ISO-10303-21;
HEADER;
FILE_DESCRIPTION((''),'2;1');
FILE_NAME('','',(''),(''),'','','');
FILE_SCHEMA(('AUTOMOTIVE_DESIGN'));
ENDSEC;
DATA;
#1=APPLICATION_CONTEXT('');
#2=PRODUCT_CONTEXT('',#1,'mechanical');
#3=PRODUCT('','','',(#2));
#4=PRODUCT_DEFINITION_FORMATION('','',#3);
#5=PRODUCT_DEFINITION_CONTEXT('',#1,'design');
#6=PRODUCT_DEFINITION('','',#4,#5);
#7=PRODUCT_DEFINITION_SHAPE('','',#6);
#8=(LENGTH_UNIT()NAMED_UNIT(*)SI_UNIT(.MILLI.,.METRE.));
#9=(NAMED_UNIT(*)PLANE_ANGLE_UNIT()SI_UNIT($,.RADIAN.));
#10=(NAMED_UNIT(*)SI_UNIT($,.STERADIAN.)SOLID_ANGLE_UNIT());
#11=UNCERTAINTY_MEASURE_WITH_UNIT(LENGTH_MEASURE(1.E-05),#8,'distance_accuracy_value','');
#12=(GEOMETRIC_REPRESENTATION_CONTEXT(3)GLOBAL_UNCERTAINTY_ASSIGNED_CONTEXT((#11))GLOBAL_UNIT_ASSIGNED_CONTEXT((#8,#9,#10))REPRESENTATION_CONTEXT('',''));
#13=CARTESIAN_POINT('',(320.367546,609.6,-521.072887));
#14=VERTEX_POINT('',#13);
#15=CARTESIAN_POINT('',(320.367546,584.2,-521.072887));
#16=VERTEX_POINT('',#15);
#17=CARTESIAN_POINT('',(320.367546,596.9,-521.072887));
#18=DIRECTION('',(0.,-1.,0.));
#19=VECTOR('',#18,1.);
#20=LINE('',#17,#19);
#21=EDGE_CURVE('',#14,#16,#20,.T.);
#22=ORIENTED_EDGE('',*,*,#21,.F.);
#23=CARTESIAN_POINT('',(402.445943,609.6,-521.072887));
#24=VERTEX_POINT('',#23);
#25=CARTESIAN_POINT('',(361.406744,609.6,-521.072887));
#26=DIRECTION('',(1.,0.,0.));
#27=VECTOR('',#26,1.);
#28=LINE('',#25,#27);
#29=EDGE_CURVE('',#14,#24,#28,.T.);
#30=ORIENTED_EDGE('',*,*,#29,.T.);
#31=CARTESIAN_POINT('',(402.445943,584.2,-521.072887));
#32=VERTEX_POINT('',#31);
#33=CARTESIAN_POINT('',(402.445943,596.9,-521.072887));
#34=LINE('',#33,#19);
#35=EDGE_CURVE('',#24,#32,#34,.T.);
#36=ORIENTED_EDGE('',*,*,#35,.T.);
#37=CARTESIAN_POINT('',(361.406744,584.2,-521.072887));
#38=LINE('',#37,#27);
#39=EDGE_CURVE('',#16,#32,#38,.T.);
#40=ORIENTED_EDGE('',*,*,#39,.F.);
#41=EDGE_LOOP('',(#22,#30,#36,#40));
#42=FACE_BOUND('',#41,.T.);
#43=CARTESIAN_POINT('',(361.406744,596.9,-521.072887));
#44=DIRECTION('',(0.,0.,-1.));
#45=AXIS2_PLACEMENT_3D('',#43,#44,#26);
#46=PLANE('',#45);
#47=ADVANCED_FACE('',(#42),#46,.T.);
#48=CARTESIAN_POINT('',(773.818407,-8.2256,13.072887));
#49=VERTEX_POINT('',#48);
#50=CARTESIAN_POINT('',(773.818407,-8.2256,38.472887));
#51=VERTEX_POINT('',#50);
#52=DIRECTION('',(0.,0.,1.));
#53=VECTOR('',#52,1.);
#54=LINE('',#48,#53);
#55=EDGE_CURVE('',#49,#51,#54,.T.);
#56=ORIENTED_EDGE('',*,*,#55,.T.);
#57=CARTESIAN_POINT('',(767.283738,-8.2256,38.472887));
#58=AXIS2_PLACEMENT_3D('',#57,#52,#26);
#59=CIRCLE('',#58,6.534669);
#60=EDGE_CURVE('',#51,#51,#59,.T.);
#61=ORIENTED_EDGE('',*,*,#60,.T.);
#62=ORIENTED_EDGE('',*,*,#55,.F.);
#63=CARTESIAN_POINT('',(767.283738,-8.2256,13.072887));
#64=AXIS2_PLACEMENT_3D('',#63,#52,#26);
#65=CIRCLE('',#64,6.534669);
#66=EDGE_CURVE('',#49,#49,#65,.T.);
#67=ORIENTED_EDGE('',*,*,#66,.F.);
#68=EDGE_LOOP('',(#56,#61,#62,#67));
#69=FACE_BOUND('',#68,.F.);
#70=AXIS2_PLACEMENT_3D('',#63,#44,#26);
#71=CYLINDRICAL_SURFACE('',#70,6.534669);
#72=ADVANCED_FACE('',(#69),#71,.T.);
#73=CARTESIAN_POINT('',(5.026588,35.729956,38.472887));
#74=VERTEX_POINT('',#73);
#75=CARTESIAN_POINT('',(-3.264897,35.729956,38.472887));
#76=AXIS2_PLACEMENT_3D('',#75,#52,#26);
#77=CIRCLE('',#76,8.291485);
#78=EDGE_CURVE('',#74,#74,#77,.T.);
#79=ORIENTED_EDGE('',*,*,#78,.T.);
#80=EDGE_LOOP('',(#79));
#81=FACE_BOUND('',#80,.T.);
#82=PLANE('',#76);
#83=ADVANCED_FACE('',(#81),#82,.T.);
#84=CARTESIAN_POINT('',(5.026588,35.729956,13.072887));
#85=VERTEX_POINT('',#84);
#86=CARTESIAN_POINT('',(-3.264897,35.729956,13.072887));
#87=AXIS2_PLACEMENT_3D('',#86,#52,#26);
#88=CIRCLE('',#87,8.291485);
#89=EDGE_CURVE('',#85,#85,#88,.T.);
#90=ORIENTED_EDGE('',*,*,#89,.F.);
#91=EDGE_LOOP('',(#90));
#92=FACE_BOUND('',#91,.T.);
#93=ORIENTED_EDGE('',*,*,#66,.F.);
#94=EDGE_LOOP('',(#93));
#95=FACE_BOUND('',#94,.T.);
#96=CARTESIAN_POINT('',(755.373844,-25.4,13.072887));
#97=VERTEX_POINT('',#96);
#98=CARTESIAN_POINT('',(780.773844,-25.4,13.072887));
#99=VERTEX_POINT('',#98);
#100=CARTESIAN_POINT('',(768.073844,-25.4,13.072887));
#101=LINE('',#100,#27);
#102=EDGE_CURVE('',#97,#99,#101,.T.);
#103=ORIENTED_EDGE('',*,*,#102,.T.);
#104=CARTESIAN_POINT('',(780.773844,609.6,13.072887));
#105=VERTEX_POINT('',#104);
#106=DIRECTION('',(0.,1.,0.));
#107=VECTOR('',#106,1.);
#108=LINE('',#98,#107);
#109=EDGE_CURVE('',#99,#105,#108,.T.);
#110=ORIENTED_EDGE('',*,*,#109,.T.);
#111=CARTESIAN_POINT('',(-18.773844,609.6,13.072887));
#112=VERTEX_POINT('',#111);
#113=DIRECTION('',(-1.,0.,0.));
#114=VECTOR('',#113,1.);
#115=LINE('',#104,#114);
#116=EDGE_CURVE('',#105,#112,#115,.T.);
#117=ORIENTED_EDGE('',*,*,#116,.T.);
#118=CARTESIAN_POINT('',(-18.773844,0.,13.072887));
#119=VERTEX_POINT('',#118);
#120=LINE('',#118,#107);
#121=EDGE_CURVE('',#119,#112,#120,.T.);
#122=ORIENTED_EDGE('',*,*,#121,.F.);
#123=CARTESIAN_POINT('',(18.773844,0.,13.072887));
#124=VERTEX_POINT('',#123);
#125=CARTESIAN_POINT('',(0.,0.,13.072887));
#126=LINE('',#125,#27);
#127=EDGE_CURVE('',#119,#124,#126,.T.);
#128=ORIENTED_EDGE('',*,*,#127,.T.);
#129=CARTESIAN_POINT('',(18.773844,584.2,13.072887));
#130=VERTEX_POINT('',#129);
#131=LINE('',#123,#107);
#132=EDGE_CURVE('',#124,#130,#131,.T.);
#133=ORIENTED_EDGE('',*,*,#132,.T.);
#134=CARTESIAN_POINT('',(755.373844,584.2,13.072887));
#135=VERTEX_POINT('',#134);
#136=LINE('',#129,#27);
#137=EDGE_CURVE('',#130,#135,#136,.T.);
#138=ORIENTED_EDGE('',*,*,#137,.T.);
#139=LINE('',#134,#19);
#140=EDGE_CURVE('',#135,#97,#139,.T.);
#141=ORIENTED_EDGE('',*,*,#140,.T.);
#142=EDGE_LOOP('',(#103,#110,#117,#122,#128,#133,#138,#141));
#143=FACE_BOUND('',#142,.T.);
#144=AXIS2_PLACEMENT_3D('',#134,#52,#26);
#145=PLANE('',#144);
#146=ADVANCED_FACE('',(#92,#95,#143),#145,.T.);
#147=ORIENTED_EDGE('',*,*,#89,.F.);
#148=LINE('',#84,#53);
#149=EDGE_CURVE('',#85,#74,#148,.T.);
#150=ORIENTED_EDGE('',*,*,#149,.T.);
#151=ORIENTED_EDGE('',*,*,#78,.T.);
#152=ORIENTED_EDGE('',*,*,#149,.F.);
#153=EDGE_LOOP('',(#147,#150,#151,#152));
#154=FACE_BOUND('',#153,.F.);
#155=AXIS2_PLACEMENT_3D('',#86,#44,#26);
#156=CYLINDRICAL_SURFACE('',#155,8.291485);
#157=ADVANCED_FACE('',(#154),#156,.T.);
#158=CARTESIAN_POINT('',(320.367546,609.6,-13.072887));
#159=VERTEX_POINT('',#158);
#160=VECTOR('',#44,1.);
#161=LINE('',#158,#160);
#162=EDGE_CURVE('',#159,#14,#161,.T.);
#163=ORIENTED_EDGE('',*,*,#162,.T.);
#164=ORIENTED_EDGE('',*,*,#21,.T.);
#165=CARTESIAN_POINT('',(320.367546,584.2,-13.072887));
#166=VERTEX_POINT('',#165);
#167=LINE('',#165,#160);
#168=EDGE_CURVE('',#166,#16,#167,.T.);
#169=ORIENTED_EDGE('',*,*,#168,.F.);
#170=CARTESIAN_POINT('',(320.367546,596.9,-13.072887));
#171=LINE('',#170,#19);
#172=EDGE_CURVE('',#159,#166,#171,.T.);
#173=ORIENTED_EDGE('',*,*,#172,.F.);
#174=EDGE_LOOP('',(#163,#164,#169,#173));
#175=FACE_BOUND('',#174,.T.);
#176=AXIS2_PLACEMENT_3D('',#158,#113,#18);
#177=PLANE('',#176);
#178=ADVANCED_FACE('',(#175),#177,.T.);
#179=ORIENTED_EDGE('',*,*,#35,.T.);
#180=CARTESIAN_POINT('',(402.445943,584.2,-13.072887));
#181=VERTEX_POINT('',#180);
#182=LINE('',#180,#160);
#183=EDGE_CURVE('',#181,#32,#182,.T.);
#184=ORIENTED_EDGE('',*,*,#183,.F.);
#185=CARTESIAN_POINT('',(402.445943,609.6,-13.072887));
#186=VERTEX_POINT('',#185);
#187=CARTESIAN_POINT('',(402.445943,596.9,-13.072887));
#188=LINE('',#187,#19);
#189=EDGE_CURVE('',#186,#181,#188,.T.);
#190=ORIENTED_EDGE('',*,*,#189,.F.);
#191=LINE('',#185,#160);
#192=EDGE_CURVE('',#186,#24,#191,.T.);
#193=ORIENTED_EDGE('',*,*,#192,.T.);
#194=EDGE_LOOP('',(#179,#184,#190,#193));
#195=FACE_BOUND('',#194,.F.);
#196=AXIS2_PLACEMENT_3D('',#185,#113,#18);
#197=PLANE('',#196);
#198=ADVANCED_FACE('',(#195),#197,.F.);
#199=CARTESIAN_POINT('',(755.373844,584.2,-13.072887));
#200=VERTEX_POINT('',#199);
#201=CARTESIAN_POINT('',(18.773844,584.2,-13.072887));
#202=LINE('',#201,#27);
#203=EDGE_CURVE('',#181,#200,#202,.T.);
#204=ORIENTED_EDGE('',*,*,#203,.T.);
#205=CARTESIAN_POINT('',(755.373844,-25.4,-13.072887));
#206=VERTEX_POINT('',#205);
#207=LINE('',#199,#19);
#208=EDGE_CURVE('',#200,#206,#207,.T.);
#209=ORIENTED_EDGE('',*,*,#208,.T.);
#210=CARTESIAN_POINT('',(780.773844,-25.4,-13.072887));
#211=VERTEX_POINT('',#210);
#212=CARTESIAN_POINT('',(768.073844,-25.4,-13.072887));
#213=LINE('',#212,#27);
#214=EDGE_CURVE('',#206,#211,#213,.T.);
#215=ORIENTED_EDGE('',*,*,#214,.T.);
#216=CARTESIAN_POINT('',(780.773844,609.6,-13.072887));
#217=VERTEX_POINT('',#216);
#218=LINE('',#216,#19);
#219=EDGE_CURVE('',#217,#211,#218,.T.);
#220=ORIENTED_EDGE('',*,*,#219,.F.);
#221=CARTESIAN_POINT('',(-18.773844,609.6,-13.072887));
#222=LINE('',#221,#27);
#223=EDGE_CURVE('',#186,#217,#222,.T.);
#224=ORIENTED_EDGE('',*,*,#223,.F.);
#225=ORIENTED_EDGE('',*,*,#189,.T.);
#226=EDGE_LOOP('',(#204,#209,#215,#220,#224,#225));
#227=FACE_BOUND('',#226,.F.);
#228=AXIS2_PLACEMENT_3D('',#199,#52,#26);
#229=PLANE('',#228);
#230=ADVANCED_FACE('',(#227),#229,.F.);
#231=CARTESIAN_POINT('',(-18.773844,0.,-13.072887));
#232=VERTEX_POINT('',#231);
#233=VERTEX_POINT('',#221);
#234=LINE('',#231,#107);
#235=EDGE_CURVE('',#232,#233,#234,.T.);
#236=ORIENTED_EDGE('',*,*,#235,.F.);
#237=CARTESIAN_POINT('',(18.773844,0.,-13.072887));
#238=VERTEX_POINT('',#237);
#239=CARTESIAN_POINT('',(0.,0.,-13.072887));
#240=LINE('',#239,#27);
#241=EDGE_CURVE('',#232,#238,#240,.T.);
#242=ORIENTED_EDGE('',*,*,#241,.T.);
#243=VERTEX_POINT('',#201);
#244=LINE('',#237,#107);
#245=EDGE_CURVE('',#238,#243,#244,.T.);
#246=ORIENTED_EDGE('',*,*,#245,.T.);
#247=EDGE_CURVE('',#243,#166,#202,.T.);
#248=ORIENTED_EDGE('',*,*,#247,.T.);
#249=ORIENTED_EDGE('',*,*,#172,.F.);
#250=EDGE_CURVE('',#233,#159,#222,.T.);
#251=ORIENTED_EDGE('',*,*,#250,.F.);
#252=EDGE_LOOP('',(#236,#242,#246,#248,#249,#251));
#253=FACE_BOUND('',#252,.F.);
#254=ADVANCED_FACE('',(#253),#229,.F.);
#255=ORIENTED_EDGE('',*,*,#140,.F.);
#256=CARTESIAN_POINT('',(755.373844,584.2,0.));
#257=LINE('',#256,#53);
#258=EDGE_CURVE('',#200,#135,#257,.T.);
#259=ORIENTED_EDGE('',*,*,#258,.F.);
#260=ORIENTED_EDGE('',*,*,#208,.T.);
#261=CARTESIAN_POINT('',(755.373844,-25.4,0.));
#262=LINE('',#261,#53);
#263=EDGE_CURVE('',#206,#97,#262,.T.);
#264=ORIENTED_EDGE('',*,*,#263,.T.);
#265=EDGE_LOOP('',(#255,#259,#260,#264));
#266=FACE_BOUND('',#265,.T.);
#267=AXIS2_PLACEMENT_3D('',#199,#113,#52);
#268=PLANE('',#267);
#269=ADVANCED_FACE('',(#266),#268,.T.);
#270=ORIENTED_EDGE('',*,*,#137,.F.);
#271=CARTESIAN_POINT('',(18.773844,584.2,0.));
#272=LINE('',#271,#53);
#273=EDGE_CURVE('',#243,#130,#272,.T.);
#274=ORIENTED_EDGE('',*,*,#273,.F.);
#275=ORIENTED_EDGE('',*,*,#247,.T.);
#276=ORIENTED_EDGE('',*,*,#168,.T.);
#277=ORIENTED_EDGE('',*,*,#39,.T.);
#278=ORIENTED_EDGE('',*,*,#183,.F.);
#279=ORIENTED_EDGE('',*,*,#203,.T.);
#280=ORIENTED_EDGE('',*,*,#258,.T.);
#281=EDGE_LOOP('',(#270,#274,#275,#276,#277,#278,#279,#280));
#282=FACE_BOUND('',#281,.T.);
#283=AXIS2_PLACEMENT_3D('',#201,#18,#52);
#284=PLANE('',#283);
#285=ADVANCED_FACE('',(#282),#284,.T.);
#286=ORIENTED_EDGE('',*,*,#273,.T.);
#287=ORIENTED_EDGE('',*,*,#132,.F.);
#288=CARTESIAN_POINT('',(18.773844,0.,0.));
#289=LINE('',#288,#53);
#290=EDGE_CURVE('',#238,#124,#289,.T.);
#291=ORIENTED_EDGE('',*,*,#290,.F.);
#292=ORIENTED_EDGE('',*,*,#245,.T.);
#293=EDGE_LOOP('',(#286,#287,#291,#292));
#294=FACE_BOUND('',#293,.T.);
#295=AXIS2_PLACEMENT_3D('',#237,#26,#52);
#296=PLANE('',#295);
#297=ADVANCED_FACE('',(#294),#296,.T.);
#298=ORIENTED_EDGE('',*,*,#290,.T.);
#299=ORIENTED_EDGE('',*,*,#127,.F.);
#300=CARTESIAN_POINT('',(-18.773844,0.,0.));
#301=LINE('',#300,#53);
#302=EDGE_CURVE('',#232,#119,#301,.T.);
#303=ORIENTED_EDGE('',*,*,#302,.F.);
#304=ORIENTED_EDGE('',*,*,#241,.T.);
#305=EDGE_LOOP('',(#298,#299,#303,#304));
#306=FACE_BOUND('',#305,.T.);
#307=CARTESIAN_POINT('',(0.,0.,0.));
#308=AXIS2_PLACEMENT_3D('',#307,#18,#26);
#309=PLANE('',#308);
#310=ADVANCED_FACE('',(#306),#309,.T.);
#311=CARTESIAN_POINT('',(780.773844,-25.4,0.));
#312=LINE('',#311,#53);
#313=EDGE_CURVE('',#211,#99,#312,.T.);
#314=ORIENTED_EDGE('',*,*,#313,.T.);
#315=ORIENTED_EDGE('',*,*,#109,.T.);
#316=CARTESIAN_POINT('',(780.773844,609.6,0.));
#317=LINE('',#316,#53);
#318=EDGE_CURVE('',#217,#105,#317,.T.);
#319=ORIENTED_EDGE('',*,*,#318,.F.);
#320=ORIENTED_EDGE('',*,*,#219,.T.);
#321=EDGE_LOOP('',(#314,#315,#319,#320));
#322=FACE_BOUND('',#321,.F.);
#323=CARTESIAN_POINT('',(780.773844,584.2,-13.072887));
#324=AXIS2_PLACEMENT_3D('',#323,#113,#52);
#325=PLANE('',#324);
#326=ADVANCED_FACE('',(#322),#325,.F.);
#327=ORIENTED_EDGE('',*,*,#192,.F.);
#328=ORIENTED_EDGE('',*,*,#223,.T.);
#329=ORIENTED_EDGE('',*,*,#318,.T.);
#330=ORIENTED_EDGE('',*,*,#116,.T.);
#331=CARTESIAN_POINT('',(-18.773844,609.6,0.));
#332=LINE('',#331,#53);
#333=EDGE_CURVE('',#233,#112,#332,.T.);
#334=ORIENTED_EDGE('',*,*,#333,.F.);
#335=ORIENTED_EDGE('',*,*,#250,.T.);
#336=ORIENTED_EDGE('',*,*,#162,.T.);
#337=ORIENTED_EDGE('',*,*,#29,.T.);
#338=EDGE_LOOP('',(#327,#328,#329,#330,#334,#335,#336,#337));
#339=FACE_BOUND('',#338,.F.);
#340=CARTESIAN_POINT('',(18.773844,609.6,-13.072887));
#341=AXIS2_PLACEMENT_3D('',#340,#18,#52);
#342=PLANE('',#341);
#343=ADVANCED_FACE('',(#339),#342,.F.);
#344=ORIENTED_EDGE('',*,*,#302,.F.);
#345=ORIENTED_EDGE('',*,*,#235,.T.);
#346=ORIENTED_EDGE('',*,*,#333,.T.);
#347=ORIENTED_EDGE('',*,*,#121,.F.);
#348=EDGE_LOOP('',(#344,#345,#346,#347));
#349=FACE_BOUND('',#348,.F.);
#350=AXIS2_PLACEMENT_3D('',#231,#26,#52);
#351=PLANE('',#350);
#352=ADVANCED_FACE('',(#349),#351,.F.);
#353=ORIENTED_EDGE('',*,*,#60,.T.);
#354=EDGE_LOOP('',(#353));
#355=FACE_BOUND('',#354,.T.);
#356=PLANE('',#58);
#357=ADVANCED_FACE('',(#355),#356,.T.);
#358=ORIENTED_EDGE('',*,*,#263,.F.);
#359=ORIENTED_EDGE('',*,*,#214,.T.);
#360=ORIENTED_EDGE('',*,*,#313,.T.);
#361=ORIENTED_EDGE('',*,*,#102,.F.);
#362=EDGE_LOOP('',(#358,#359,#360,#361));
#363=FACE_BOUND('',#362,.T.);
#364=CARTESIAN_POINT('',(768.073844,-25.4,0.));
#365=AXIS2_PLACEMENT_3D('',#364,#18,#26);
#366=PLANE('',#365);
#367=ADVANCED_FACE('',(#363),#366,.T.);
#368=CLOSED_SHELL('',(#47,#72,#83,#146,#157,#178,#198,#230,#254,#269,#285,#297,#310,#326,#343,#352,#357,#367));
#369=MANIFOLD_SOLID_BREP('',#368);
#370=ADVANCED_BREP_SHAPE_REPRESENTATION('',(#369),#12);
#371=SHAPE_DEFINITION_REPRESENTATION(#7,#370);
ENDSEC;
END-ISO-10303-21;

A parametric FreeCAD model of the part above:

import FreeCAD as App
import Part
import Sketcher
from FreeCAD import Vector
Q = App.Units.Quantity

doc = App.newDocument("Part")
params = doc.addObject("Spreadsheet::Sheet", "Params")
for row, (alias, value) in enumerate([
    ("pad1_length", "24 in"),
    ("sketch2_width", "1 in"),
    ("pad2_length", "30 in"),
    ("sketch3_width", "1 in"),
    ("pad3_length", "24 in"),
    ("sketch4_height", "1 in"),
    ("pad4_length", "20 in"),
    ("pad5_length", "1 in"),
    ("pad6_length", "1 in"),
], start=1):
    params.set(f"A{row}", alias)
    params.set(f"B{row}", "=" + value)
    params.setAlias(f"B{row}", alias)

body = doc.addObject("PartDesign::Body", "Body")

# Sketch on XZ plane
sketch1 = body.newObject("Sketcher::SketchObject", "Sketch")
sketch1.AttachmentSupport = (doc.getObject("XZ_Plane"), [""])
sketch1.MapMode = "FlatFace"
sketch1.addGeometry([
    Part.LineSegment(Vector(-19, 13, 0), Vector(-19, -13, 0)),
    Part.LineSegment(Vector(-19, -13, 0), Vector(19, -13, 0)),
    Part.LineSegment(Vector(19, -13, 0), Vector(19, 13, 0)),
    Part.LineSegment(Vector(19, 13, 0), Vector(-19, 13, 0)),
], False)
sketch1.addConstraint([
    Sketcher.Constraint("Coincident", 0, 2, 1, 1),
    Sketcher.Constraint("Coincident", 1, 2, 2, 1),
    Sketcher.Constraint("Coincident", 2, 2, 3, 1),
    Sketcher.Constraint("Coincident", 3, 2, 0, 1),
    Sketcher.Constraint("Vertical", 0),
    Sketcher.Constraint("Horizontal", 1),
    Sketcher.Constraint("Vertical", 2),
    Sketcher.Constraint("Horizontal", 3),
    Sketcher.Constraint("Symmetric", 0, 2, 2, 2, -1, 1),
    Sketcher.Constraint("DistanceX", 1, 1, 1, 2, 37.547688),
    Sketcher.Constraint("DistanceY", 0, 2, 0, 1, 26.145774),
])
pad1 = body.newObject("PartDesign::Pad", "Pad")
pad1.Profile = sketch1
pad1.setExpression("Length", "Params.pad1_length")
pad1.Reversed = True

# Sketch on YZ plane
sketch2 = body.newObject("Sketcher::SketchObject", "Sketch001")
sketch2.AttachmentSupport = (doc.getObject("YZ_Plane"), [""])
sketch2.MapMode = "FlatFace"
sketch2.AttachmentOffset = App.Placement(Vector(0, 0, 18.773844), App.Rotation())
sketch2.addGeometry([
    Part.LineSegment(Vector(584, 13, 0), Vector(584, -13, 0)),
    Part.LineSegment(Vector(584, -13, 0), Vector(610, -13, 0)),
    Part.LineSegment(Vector(610, -13, 0), Vector(610, 13, 0)),
    Part.LineSegment(Vector(610, 13, 0), Vector(584, 13, 0)),
], False)
sketch2.addConstraint([
    Sketcher.Constraint("Coincident", 0, 2, 1, 1),
    Sketcher.Constraint("Coincident", 1, 2, 2, 1),
    Sketcher.Constraint("Coincident", 2, 2, 3, 1),
    Sketcher.Constraint("Coincident", 3, 2, 0, 1),
    Sketcher.Constraint("Vertical", 0),
    Sketcher.Constraint("Horizontal", 1),
    Sketcher.Constraint("Vertical", 2),
    Sketcher.Constraint("Horizontal", 3),
    Sketcher.Constraint("DistanceX", 1, 1, 1, 2, Q("1 in")),
    Sketcher.Constraint("DistanceX", -1, 1, 0, 2, Q("23 in")),
    Sketcher.Constraint("DistanceY", 0, 2, 0, 1, 26.145774),
    Sketcher.Constraint("DistanceY", 0, 2, -1, 1, 13.072887),
])
sketch2.setExpression("Constraints[8]", "Params.sketch2_width")
pad2 = body.newObject("PartDesign::Pad", "Pad001")
pad2.Profile = sketch2
pad2.setExpression("Length", "Params.pad2_length")

# Sketch on XZ plane
sketch3 = body.newObject("Sketcher::SketchObject", "Sketch002")
sketch3.AttachmentSupport = (doc.getObject("XZ_Plane"), [""])
sketch3.MapMode = "FlatFace"
sketch3.AttachmentOffset = App.Placement(Vector(0, 0, -23 * 25.4), App.Rotation())
sketch3.addGeometry([
    Part.LineSegment(Vector(755, 13, 0), Vector(755, -13, 0)),
    Part.LineSegment(Vector(755, -13, 0), Vector(781, -13, 0)),
    Part.LineSegment(Vector(781, -13, 0), Vector(781, 13, 0)),
    Part.LineSegment(Vector(781, 13, 0), Vector(755, 13, 0)),
], False)
sketch3.addConstraint([
    Sketcher.Constraint("Coincident", 0, 2, 1, 1),
    Sketcher.Constraint("Coincident", 1, 2, 2, 1),
    Sketcher.Constraint("Coincident", 2, 2, 3, 1),
    Sketcher.Constraint("Coincident", 3, 2, 0, 1),
    Sketcher.Constraint("Vertical", 0),
    Sketcher.Constraint("Horizontal", 1),
    Sketcher.Constraint("Vertical", 2),
    Sketcher.Constraint("Horizontal", 3),
    Sketcher.Constraint("DistanceX", 1, 1, 1, 2, Q("1 in")),
    Sketcher.Constraint("DistanceY", 0, 2, 0, 1, 26.145774),
    Sketcher.Constraint("DistanceX", -1, 1, 0, 2, 755.373844),
    Sketcher.Constraint("DistanceY", 0, 2, -1, 1, 13.072887),
])
sketch3.setExpression("Constraints[8]", "Params.sketch3_width")
pad3 = body.newObject("PartDesign::Pad", "Pad002")
pad3.Profile = sketch3
pad3.setExpression("Length", "Params.pad3_length")

# Sketch on XY plane
sketch4 = body.newObject("Sketcher::SketchObject", "Sketch003")
sketch4.AttachmentSupport = (doc.getObject("XY_Plane"), [""])
sketch4.MapMode = "FlatFace"
sketch4.AttachmentOffset = App.Placement(Vector(0, 0, -13.072887), App.Rotation())
sketch4.addGeometry([
    Part.LineSegment(Vector(320, 584, 0), Vector(320, 610, 0)),
    Part.LineSegment(Vector(320, 610, 0), Vector(402, 610, 0)),
    Part.LineSegment(Vector(402, 610, 0), Vector(402, 584, 0)),
    Part.LineSegment(Vector(402, 584, 0), Vector(320, 584, 0)),
], False)
sketch4.addConstraint([
    Sketcher.Constraint("Coincident", 0, 2, 1, 1),
    Sketcher.Constraint("Coincident", 1, 2, 2, 1),
    Sketcher.Constraint("Coincident", 2, 2, 3, 1),
    Sketcher.Constraint("Coincident", 3, 2, 0, 1),
    Sketcher.Constraint("Vertical", 0),
    Sketcher.Constraint("Horizontal", 1),
    Sketcher.Constraint("Vertical", 2),
    Sketcher.Constraint("Horizontal", 3),
    Sketcher.Constraint("DistanceY", 0, 1, 0, 2, Q("1 in")),
    Sketcher.Constraint("DistanceY", -1, 1, 0, 2, Q("24 in")),
    Sketcher.Constraint("DistanceX", 1, 1, 1, 2, 82.078397),
    Sketcher.Constraint("DistanceX", -1, 1, 0, 2, 320.367546),
])
sketch4.setExpression("Constraints[8]", "Params.sketch4_height")
pad4 = body.newObject("PartDesign::Pad", "Pad003")
pad4.Profile = sketch4
pad4.setExpression("Length", "Params.pad4_length")
pad4.Reversed = True

# Sketch on XY plane
sketch5 = body.newObject("Sketcher::SketchObject", "Sketch004")
sketch5.AttachmentSupport = (doc.getObject("XY_Plane"), [""])
sketch5.MapMode = "FlatFace"
sketch5.AttachmentOffset = App.Placement(Vector(0, 0, 13.072887), App.Rotation())
sketch5.addGeometry(Part.Circle(Vector(-3, 36, 0), Vector(0, 0, 1), 8), False)
sketch5.addConstraint([
    Sketcher.Constraint("Diameter", 0, 16.58297),
    Sketcher.Constraint("DistanceX", 0, 3, -1, 1, 3.264897),
    Sketcher.Constraint("DistanceY", -1, 1, 0, 3, 35.729956),
])
pad5 = body.newObject("PartDesign::Pad", "Pad004")
pad5.Profile = sketch5
pad5.setExpression("Length", "Params.pad5_length")

# Sketch on XY plane
sketch6 = body.newObject("Sketcher::SketchObject", "Sketch005")
sketch6.AttachmentSupport = (doc.getObject("XY_Plane"), [""])
sketch6.MapMode = "FlatFace"
sketch6.AttachmentOffset = App.Placement(Vector(0, 0, 13.072887), App.Rotation())
sketch6.addGeometry(Part.Circle(Vector(767, -8, 0), Vector(0, 0, 1), 7), False)
sketch6.addConstraint([
    Sketcher.Constraint("Diameter", 0, 13.069338),
    Sketcher.Constraint("DistanceY", 0, 3, -1, 1, 8.2256),
    Sketcher.Constraint("DistanceX", -1, 1, 0, 3, 767.283738),
])
pad6 = body.newObject("PartDesign::Pad", "Pad005")
pad6.Profile = sketch6
pad6.setExpression("Length", "Params.pad6_length")

doc.recompute()
